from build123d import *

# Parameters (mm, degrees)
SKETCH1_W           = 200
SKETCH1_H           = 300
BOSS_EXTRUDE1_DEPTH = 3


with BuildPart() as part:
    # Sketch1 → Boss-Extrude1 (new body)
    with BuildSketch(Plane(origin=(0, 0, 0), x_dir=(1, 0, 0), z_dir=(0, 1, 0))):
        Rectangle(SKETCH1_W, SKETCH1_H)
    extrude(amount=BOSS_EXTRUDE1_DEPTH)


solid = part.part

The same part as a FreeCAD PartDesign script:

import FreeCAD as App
import Part
import Sketcher

V = App.Vector
Q = App.Units.Quantity


def add_polygon(sketch, points):
    """Adds a closed chain of lines whose ends are joined by coincident constraints."""
    first, n = sketch.GeometryCount, len(points)
    for a, b in zip(points, points[1:] + points[:1]):
        sketch.addGeometry(Part.LineSegment(App.Vector(*a, 0), App.Vector(*b, 0)), False)
    for i in range(n):
        sketch.addConstraint(Sketcher.Constraint("Coincident", first + i, 2, first + (i + 1) % n, 1))

doc = App.newDocument("Part")
body = doc.addObject("PartDesign::Body", "Body")

# Sketch on XZ plane
sketch1 = doc.addObject("Sketcher::SketchObject", "Sketch")
body.addObject(sketch1)
sketch1.AttachmentSupport = (doc.XZ_Plane, [""])
sketch1.MapMode = "FlatFace"
add_polygon(sketch1, [(-100, -150), (-100, 150), (100, 150), (100, -150)])  # lines 0-3
sketch1.addConstraint(Sketcher.Constraint("Vertical", 0))
sketch1.addConstraint(Sketcher.Constraint("Horizontal", 1))
sketch1.addConstraint(Sketcher.Constraint("Vertical", 2))
sketch1.addConstraint(Sketcher.Constraint("Horizontal", 3))
sketch1.addConstraint(Sketcher.Constraint("Symmetric", 0, 2, 2, 2, -1, 1))
sketch1.addConstraint(Sketcher.Constraint("DistanceX", 1, 1, 1, 2, Q("200 mm")))
sketch1.addConstraint(Sketcher.Constraint("DistanceY", 0, 1, 0, 2, Q("300 mm")))
pad1 = doc.addObject("PartDesign::Pad", "Pad")
body.addObject(pad1)
pad1.Profile = sketch1
pad1.Length = 3
pad1.Reversed = True

doc.recompute()
